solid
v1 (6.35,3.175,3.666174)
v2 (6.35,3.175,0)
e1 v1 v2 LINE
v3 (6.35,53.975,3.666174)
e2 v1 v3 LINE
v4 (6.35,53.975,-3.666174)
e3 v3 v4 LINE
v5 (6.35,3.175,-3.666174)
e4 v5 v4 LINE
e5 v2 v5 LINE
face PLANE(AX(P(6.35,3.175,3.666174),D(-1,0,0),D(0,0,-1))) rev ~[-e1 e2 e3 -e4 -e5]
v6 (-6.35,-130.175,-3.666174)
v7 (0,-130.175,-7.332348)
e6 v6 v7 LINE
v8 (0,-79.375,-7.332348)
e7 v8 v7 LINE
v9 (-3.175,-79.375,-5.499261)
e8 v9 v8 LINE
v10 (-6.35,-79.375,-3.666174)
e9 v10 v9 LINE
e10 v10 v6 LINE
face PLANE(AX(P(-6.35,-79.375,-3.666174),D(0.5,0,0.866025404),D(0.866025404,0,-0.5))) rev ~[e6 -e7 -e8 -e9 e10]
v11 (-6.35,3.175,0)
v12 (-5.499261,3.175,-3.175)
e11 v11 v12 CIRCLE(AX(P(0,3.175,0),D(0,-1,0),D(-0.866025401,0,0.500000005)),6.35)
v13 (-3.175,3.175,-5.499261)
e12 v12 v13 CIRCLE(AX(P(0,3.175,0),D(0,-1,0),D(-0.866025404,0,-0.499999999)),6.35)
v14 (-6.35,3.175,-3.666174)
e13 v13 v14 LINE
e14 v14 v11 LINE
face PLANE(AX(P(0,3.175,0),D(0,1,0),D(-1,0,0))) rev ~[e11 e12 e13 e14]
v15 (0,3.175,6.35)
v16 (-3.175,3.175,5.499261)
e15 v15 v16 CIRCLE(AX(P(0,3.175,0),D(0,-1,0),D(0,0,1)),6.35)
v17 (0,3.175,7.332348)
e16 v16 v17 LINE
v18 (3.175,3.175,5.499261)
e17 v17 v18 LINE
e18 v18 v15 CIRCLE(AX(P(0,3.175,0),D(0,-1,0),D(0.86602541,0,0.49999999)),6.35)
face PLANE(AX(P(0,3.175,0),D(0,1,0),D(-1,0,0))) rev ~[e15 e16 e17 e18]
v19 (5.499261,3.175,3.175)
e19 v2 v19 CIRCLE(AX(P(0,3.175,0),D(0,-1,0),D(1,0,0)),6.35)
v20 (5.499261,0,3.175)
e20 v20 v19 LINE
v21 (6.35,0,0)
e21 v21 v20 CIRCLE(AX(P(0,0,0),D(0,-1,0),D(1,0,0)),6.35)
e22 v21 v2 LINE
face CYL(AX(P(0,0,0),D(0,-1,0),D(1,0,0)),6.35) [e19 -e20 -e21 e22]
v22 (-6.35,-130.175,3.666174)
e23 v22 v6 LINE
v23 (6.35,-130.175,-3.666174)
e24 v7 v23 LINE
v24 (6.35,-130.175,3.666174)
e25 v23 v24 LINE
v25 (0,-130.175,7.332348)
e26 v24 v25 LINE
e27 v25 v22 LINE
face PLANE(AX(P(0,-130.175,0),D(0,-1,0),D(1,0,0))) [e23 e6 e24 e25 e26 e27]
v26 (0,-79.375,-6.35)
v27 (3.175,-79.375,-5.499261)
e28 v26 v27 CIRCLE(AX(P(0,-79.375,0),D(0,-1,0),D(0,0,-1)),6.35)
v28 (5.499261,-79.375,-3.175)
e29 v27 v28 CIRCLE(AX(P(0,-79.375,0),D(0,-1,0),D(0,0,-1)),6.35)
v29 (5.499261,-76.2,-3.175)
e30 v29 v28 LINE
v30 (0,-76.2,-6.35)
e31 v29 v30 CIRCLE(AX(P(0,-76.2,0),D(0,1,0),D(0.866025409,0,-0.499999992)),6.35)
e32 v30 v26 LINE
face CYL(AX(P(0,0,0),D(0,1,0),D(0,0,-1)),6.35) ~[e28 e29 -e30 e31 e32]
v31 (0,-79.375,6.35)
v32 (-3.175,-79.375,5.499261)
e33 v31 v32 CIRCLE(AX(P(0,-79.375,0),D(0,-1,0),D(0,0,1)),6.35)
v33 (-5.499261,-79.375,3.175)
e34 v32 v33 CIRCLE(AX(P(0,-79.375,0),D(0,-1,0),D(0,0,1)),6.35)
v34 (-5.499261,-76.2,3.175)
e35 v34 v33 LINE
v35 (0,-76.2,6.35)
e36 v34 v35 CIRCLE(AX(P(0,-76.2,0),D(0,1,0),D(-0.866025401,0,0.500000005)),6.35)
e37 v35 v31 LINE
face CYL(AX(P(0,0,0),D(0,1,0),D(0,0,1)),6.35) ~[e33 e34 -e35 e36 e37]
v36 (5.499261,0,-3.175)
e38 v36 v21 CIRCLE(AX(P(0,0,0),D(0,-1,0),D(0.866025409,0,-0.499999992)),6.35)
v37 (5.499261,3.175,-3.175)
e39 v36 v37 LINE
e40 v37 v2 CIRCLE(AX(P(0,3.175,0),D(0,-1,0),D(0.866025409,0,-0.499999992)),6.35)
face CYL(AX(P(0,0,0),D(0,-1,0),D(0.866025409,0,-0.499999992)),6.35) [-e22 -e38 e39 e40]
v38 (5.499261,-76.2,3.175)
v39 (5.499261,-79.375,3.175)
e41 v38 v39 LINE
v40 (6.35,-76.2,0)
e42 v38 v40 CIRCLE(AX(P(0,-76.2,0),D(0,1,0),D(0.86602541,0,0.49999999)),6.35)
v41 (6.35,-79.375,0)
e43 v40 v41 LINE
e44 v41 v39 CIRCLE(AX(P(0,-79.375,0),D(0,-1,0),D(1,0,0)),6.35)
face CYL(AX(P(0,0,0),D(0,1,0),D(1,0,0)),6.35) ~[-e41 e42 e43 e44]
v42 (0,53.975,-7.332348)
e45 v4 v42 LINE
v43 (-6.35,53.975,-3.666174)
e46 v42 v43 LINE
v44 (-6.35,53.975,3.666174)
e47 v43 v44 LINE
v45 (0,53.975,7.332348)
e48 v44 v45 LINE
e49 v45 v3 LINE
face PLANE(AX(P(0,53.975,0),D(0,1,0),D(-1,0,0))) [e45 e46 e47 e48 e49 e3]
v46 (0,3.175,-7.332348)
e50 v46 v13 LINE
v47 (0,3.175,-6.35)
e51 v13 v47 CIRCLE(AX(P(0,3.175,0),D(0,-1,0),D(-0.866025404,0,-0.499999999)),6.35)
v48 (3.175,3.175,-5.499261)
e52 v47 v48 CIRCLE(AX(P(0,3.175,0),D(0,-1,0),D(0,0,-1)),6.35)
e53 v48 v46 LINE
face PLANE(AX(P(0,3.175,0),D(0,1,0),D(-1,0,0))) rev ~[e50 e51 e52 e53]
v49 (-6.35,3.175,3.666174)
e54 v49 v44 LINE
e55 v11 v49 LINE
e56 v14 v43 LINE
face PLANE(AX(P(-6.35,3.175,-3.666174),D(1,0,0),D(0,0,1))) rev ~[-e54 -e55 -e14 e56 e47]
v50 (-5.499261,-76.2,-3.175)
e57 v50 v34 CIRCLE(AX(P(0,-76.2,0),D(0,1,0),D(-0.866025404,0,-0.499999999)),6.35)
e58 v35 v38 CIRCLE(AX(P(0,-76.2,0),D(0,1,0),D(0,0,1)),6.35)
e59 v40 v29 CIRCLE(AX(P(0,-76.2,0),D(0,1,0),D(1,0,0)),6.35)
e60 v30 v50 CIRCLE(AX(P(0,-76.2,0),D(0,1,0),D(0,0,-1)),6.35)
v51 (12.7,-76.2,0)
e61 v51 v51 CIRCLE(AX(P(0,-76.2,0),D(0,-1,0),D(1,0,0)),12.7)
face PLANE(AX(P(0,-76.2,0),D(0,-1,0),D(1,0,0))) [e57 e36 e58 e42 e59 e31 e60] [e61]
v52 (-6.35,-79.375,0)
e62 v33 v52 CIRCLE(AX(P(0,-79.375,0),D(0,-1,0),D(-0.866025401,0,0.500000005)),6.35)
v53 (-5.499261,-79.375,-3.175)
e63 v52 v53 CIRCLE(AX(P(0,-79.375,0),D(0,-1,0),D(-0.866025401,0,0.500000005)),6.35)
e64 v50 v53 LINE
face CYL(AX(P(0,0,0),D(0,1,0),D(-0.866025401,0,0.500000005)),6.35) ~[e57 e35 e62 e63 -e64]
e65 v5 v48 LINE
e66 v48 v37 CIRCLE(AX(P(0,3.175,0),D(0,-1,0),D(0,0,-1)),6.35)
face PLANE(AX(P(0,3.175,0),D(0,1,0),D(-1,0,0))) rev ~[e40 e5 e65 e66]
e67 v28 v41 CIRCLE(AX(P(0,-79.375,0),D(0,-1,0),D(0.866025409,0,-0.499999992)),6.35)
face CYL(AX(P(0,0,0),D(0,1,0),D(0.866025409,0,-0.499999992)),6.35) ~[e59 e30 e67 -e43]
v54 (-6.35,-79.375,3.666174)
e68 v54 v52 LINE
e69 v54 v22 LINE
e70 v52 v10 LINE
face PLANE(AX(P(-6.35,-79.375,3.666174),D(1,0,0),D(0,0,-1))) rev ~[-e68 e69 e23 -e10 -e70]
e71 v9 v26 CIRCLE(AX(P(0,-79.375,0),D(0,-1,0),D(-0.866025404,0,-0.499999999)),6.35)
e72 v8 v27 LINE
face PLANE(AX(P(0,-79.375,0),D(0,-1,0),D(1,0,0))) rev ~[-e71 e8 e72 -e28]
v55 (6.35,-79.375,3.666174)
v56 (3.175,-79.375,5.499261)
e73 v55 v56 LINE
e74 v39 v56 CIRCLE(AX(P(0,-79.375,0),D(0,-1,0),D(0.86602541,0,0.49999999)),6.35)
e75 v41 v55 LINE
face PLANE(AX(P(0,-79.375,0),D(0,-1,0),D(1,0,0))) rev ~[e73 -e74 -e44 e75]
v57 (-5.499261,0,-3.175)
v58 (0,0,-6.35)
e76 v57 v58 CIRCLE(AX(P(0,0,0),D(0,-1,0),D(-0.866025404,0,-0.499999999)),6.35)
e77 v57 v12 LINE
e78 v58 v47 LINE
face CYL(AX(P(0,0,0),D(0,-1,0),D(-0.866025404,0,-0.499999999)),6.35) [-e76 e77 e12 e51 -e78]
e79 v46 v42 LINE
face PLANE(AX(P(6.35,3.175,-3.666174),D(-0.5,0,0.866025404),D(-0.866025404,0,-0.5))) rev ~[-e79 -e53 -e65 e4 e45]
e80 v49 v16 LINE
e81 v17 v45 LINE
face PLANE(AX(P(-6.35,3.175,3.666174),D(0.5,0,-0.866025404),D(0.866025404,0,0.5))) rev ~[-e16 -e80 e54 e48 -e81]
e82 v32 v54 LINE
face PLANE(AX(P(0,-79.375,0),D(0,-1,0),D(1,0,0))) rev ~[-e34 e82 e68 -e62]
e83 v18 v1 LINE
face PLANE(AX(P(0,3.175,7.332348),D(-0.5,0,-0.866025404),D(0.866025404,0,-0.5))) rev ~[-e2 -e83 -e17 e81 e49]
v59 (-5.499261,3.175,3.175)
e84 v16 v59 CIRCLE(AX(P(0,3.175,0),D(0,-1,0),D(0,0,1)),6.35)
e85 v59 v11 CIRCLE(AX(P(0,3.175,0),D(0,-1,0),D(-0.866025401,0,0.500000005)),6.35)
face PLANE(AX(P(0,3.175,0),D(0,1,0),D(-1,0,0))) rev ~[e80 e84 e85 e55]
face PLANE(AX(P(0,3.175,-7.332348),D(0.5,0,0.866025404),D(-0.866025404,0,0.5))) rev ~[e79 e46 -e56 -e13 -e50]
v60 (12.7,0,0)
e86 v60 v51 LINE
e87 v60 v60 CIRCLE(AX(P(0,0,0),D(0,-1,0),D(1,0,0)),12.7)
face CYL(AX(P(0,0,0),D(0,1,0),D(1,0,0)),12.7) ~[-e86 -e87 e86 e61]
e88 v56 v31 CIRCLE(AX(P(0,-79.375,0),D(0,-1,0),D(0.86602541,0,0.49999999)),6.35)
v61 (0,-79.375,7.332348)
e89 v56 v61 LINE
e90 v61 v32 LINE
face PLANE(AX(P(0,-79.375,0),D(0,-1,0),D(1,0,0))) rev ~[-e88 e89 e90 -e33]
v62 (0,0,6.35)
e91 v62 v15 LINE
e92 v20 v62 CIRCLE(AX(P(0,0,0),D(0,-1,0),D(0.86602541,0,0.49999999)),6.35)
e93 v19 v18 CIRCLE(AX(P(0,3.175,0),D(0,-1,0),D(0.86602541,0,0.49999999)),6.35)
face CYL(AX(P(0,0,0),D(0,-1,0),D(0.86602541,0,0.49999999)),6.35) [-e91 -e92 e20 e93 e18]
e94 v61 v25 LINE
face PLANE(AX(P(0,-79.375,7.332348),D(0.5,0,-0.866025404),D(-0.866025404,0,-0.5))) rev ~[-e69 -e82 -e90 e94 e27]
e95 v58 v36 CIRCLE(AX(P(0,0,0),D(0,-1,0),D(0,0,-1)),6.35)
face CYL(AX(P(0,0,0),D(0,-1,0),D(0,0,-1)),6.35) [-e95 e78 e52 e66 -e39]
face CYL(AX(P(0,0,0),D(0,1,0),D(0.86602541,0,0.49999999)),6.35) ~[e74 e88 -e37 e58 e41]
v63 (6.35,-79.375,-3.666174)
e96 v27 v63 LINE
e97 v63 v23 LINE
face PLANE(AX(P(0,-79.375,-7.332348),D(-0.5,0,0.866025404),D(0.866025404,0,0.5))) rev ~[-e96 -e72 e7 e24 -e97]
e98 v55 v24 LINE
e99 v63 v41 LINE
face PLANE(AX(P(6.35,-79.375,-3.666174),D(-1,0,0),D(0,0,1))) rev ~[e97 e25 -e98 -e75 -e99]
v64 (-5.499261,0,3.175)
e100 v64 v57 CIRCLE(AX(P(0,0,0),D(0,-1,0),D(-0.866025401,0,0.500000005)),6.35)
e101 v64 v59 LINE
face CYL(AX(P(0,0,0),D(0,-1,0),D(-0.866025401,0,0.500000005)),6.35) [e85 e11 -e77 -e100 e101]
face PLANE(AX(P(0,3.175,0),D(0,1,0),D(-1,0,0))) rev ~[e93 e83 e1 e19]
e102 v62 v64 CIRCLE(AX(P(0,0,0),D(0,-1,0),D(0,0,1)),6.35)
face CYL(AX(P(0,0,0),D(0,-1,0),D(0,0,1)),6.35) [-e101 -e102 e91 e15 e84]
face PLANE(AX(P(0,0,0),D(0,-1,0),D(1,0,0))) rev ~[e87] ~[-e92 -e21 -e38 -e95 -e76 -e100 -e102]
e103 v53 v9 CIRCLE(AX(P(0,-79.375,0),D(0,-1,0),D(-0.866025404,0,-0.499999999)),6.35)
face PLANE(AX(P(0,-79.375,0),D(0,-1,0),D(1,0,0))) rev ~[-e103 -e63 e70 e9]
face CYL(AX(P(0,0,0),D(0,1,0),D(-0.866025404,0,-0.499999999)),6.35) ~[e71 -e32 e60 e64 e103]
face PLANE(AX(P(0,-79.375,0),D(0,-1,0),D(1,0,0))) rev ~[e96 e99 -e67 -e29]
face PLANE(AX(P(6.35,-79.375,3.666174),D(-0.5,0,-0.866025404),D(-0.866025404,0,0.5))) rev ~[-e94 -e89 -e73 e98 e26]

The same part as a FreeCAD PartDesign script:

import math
import FreeCAD as App
import Part
import Sketcher
Q = App.Units.Quantity

doc = App.newDocument("Part")
params = doc.addObject("Spreadsheet::Sheet", "Params")
for row, (alias, value) in enumerate([
    ("sketch1_diameter", "1 in"),
    ("sketch1_radius", "0.25 in"),
    ("pad1_length", "3 in"),
    ("sketch2_radius", "0.25 in"),
    ("pad2_length", "3.125 in"),
    ("pad2_length2", "0.125 in"),
    ("pad3_length", "2 in"),
    ("pad4_length", "2 in"),
], start=1):
    params.set(f"A{row}", alias)
    params.set(f"B{row}", "=" + value)
    params.setAlias(f"B{row}", alias)

body = doc.addObject("PartDesign::Body", "Body")

sketch1 = body.newObject("Sketcher::SketchObject", "Sketch")
sketch1.AttachmentSupport = (doc.getObject("XZ_Plane"), [""])
sketch1.MapMode = "FlatFace"
sketch1.addGeometry([
    Part.Circle(App.Vector(0, 0, 0), App.Vector(0, 0, 1), 12.7),
    Part.ArcOfCircle(Part.Circle(App.Vector(0, 0, 0), App.Vector(0, 0, 1), 6.3), math.radians(30), math.radians(90)),
    Part.ArcOfCircle(Part.Circle(App.Vector(0, 0, 0), App.Vector(0, 0, 1), 6.3), math.radians(0), math.radians(30)),
    Part.ArcOfCircle(Part.Circle(App.Vector(0, 0, 0), App.Vector(0, 0, 1), 6.3), math.radians(-30), math.radians(0)),
    Part.ArcOfCircle(Part.Circle(App.Vector(0, 0, 0), App.Vector(0, 0, 1), 6.3), math.radians(-90), math.radians(-30)),
    Part.ArcOfCircle(Part.Circle(App.Vector(0, 0, 0), App.Vector(0, 0, 1), 6.3), math.radians(-150), math.radians(-90)),
    Part.ArcOfCircle(Part.Circle(App.Vector(0, 0, 0), App.Vector(0, 0, 1), 6.3), math.radians(150), math.radians(210)),
    Part.ArcOfCircle(Part.Circle(App.Vector(0, 0, 0), App.Vector(0, 0, 1), 6.3), math.radians(90), math.radians(150)),
], False)
sketch1.addConstraint([
    Sketcher.Constraint("Tangent", 1, 1, 2, 2),
    Sketcher.Constraint("Tangent", 2, 1, 3, 2),
    Sketcher.Constraint("Tangent", 3, 1, 4, 2),
    Sketcher.Constraint("Tangent", 4, 1, 5, 2),
    Sketcher.Constraint("Tangent", 5, 1, 6, 2),
    Sketcher.Constraint("Tangent", 6, 1, 7, 2),
    Sketcher.Constraint("Tangent", 7, 1, 1, 2),
    Sketcher.Constraint("Coincident", 0, 3, -1, 1),
    Sketcher.Constraint("Coincident", 1, 3, -1, 1),
    Sketcher.Constraint("Coincident", 3, 3, -1, 1),
    Sketcher.Constraint("Coincident", 5, 3, -1, 1),
    Sketcher.Constraint("PointOnObject", 2, 1, -1),
    Sketcher.Constraint("PointOnObject", 4, 1, -2),
    Sketcher.Constraint("PointOnObject", 7, 1, -2),
    Sketcher.Constraint("Horizontal", 3, 1, 5, 1),
    Sketcher.Constraint("Horizontal", 1, 1, 6, 1),
    Sketcher.Constraint("Vertical", 1, 1, 3, 1),
    Sketcher.Constraint("Diameter", 0, Q("1 in")),
    Sketcher.Constraint("Radius", 1, Q("0.25 in")),
    Sketcher.Constraint("DistanceY", 3, 1, 1, 1, Q("0.25 in")),
])
sketch1.setExpression("Constraints[17]", "Params.sketch1_diameter")
sketch1.setExpression("Constraints[18]", "Params.sketch1_radius")
pad1 = body.newObject("PartDesign::Pad", "Pad")
pad1.Profile = sketch1
pad1.setExpression("Length", "Params.pad1_length")

sketch2 = body.newObject("Sketcher::SketchObject", "Sketch001")
sketch2.AttachmentSupport = (doc.getObject("XZ_Plane"), [""])
sketch2.MapMode = "FlatFace"
sketch2.addGeometry([
    Part.ArcOfCircle(Part.Circle(App.Vector(0, 0, 0), App.Vector(0, 0, 1), 6.3), math.radians(-30), math.radians(0)),
    Part.ArcOfCircle(Part.Circle(App.Vector(0, 0, 0), App.Vector(0, 0, 1), 6.3), math.radians(0), math.radians(30)),
    Part.ArcOfCircle(Part.Circle(App.Vector(0, 0, 0), App.Vector(0, 0, 1), 6.3), math.radians(30), math.radians(90)),
    Part.ArcOfCircle(Part.Circle(App.Vector(0, 0, 0), App.Vector(0, 0, 1), 6.3), math.radians(90), math.radians(150)),
    Part.ArcOfCircle(Part.Circle(App.Vector(0, 0, 0), App.Vector(0, 0, 1), 6.3), math.radians(150), math.radians(210)),
    Part.ArcOfCircle(Part.Circle(App.Vector(0, 0, 0), App.Vector(0, 0, 1), 6.3), math.radians(-150), math.radians(-90)),
    Part.ArcOfCircle(Part.Circle(App.Vector(0, 0, 0), App.Vector(0, 0, 1), 6.3), math.radians(-90), math.radians(-30)),
], False)
sketch2.addConstraint([
    Sketcher.Constraint("Tangent", 0, 2, 1, 1),
    Sketcher.Constraint("Tangent", 1, 2, 2, 1),
    Sketcher.Constraint("Tangent", 2, 2, 3, 1),
    Sketcher.Constraint("Tangent", 3, 2, 4, 1),
    Sketcher.Constraint("Tangent", 4, 2, 5, 1),
    Sketcher.Constraint("Tangent", 5, 2, 6, 1),
    Sketcher.Constraint("Tangent", 6, 2, 0, 1),
    Sketcher.Constraint("Coincident", 0, 3, -1, 1),
    Sketcher.Constraint("Coincident", 2, 3, -1, 1),
    Sketcher.Constraint("Coincident", 4, 3, -1, 1),
    Sketcher.Constraint("PointOnObject", 0, 2, -1),
    Sketcher.Constraint("PointOnObject", 2, 2, -2),
    Sketcher.Constraint("PointOnObject", 5, 2, -2),
    Sketcher.Constraint("Horizontal", 1, 2, 3, 2),
    Sketcher.Constraint("Horizontal", 4, 2, 6, 2),
    Sketcher.Constraint("Vertical", 3, 2, 4, 2),
    Sketcher.Constraint("Radius", 0, Q("0.25 in")),
    Sketcher.Constraint("DistanceY", 6, 2, 1, 2, Q("0.25 in")),
])
sketch2.setExpression("Constraints[16]", "Params.sketch2_radius")
pad2 = body.newObject("PartDesign::Pad", "Pad001")
pad2.Profile = sketch2
pad2.Type = "TwoLengths"
pad2.setExpression("Length", "Params.pad2_length")
pad2.setExpression("Length2", "Params.pad2_length2")

sketch3 = body.newObject("Sketcher::SketchObject", "Sketch002")
sketch3.AttachmentSupport = (doc.getObject("XZ_Plane"), [""])
sketch3.MapMode = "FlatFace"
sketch3.AttachmentOffset = App.Placement(App.Vector(0, 0, -0.125 * 25.4), App.Rotation())
sketch3.addGeometry([
    Part.LineSegment(App.Vector(-6, -4, 0), App.Vector(-6, 4, 0)),
    Part.LineSegment(App.Vector(-6, 4, 0), App.Vector(0, 7, 0)),
    Part.LineSegment(App.Vector(0, 7, 0), App.Vector(6, 4, 0)),
    Part.LineSegment(App.Vector(6, 4, 0), App.Vector(6, -4, 0)),
    Part.LineSegment(App.Vector(6, -4, 0), App.Vector(0, -7, 0)),
    Part.LineSegment(App.Vector(0, -7, 0), App.Vector(-6, -4, 0)),
], False)
sketch3.addConstraint([
    Sketcher.Constraint("Coincident", 0, 2, 1, 1),
    Sketcher.Constraint("Coincident", 1, 2, 2, 1),
    Sketcher.Constraint("Coincident", 2, 2, 3, 1),
    Sketcher.Constraint("Coincident", 3, 2, 4, 1),
    Sketcher.Constraint("Coincident", 4, 2, 5, 1),
    Sketcher.Constraint("Coincident", 5, 2, 0, 1),
    Sketcher.Constraint("Vertical", 0),
    Sketcher.Constraint("Vertical", 3),
    Sketcher.Constraint("Symmetric", 0, 2, 3, 2, -1, 1),
    Sketcher.Constraint("Symmetric", 1, 2, 4, 2, -1, 1),
    Sketcher.Constraint("PointOnObject", 1, 2, -2),
    Sketcher.Constraint("Parallel", 2, 5),
    Sketcher.Constraint("Horizontal", 0, 2, 2, 2),
    Sketcher.Constraint("Angle", 1, Q("30 deg")),
    Sketcher.Constraint("DistanceX", 0, 2, 2, 2, Q("0.5 in")),
    Sketcher.Constraint("DistanceY", 0, 1, 0, 2, Q("7.332348 mm")),
])
pad3 = body.newObject("PartDesign::Pad", "Pad002")
pad3.Profile = sketch3
pad3.setExpression("Length", "Params.pad3_length")
pad3.Reversed = True

sketch4 = body.newObject("Sketcher::SketchObject", "Sketch003")
sketch4.AttachmentSupport = (doc.getObject("XZ_Plane"), [""])
sketch4.MapMode = "FlatFace"
sketch4.AttachmentOffset = App.Placement(App.Vector(0, 0, 3.125 * 25.4), App.Rotation())
sketch4.addGeometry([
    Part.LineSegment(App.Vector(-6, 4, 0), App.Vector(-6, -4, 0)),
    Part.LineSegment(App.Vector(-6, -4, 0), App.Vector(0, -7, 0)),
    Part.LineSegment(App.Vector(0, -7, 0), App.Vector(6, -4, 0)),
    Part.LineSegment(App.Vector(6, -4, 0), App.Vector(6, 4, 0)),
    Part.LineSegment(App.Vector(6, 4, 0), App.Vector(0, 7, 0)),
    Part.LineSegment(App.Vector(0, 7, 0), App.Vector(-6, 4, 0)),
], False)
sketch4.addConstraint([
    Sketcher.Constraint("Coincident", 0, 2, 1, 1),
    Sketcher.Constraint("Coincident", 1, 2, 2, 1),
    Sketcher.Constraint("Coincident", 2, 2, 3, 1),
    Sketcher.Constraint("Coincident", 3, 2, 4, 1),
    Sketcher.Constraint("Coincident", 4, 2, 5, 1),
    Sketcher.Constraint("Coincident", 5, 2, 0, 1),
    Sketcher.Constraint("Vertical", 0),
    Sketcher.Constraint("Vertical", 3),
    Sketcher.Constraint("Symmetric", 0, 2, 3, 2, -1, 1),
    Sketcher.Constraint("Symmetric", 1, 2, 4, 2, -1, 1),
    Sketcher.Constraint("PointOnObject", 1, 2, -2),
    Sketcher.Constraint("Parallel", 2, 5),
    Sketcher.Constraint("Horizontal", 0, 2, 2, 2),
    Sketcher.Constraint("Angle", 1, Q("-30 deg")),
    Sketcher.Constraint("DistanceX", 0, 2, 2, 2, Q("0.5 in")),
    Sketcher.Constraint("DistanceY", 0, 2, 0, 1, Q("7.332348 mm")),
])
pad4 = body.newObject("PartDesign::Pad", "Pad003")
pad4.Profile = sketch4
pad4.setExpression("Length", "Params.pad4_length")

doc.recompute()
